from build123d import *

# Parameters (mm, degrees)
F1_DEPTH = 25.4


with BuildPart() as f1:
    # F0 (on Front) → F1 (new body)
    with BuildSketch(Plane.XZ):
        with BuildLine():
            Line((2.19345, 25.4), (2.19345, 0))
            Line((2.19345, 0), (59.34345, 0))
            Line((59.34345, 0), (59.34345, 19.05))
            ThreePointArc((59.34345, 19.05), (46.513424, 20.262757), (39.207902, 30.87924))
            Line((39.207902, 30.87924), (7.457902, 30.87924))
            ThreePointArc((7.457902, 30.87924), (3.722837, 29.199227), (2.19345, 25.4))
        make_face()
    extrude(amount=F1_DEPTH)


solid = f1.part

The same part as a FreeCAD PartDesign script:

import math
import FreeCAD as App
import Part
import Sketcher
from FreeCAD import Vector
Q = App.Units.Quantity

doc = App.newDocument("Part")
body = doc.addObject("PartDesign::Body", "Body")

# Sketch on XZ plane
sketch1 = body.newObject("Sketcher::SketchObject", "Sketch")
sketch1.AttachmentSupport = (doc.getObject("XZ_Plane"), [""])
sketch1.MapMode = "FlatFace"
sketch1.addGeometry([
    Part.LineSegment(Vector(2, 25, 0), Vector(2, 0, 0)),  # 0
    Part.LineSegment(Vector(2, 0, 0), Vector(59, 0, 0)),  # 1
    Part.LineSegment(Vector(59, 0, 0), Vector(59, 19, 0)),  # 2
    Part.ArcOfCircle(Part.Circle(Vector(54, 33, 0), Vector(0, 0, 1), 15), math.radians(-171), math.radians(-70)),  # 3
    Part.LineSegment(Vector(39, 31, 0), Vector(7, 31, 0)),  # 4
    Part.ArcOfCircle(Part.Circle(Vector(8, 25, 0), Vector(0, 0, 1), 5), math.radians(92), math.radians(180)),  # 5
], False)
sketch1.addConstraint([
    Sketcher.Constraint("Coincident", 0, 2, 1, 1),
    Sketcher.Constraint("Coincident", 1, 2, 2, 1),
    Sketcher.Constraint("Coincident", 2, 2, 3, 2),
    Sketcher.Constraint("Coincident", 3, 1, 4, 1),
    Sketcher.Constraint("Coincident", 4, 2, 5, 1),
    Sketcher.Constraint("Tangent", 5, 2, 0, 1),
    Sketcher.Constraint("Vertical", 0),
    Sketcher.Constraint("Horizontal", 1),
    Sketcher.Constraint("Vertical", 2),
    Sketcher.Constraint("Horizontal", 4),
    Sketcher.Constraint("PointOnObject", 0, 2, -1),
    Sketcher.Constraint("DistanceY", 0, 2, 0, 1, Q("1 in")),
    Sketcher.Constraint("DistanceX", 1, 1, 1, 2, Q("2.25 in")),
    Sketcher.Constraint("DistanceX", 4, 2, 4, 1, Q("1.25 in")),
    Sketcher.Constraint("DistanceY", 2, 1, 2, 2, Q("0.75 in")),
    Sketcher.Constraint("Radius", 3, 15.227747),
    Sketcher.Constraint("Radius", 5, 5.483624),
    Sketcher.Constraint("DistanceX", -1, 1, 4, 2, 7.457902),
    Sketcher.Constraint("DistanceX", -1, 1, 0, 2, 2.19345),
])
pad1 = body.newObject("PartDesign::Pad", "Pad")
pad1.Profile = sketch1
pad1.Length = Q("1 in")

doc.recompute()
